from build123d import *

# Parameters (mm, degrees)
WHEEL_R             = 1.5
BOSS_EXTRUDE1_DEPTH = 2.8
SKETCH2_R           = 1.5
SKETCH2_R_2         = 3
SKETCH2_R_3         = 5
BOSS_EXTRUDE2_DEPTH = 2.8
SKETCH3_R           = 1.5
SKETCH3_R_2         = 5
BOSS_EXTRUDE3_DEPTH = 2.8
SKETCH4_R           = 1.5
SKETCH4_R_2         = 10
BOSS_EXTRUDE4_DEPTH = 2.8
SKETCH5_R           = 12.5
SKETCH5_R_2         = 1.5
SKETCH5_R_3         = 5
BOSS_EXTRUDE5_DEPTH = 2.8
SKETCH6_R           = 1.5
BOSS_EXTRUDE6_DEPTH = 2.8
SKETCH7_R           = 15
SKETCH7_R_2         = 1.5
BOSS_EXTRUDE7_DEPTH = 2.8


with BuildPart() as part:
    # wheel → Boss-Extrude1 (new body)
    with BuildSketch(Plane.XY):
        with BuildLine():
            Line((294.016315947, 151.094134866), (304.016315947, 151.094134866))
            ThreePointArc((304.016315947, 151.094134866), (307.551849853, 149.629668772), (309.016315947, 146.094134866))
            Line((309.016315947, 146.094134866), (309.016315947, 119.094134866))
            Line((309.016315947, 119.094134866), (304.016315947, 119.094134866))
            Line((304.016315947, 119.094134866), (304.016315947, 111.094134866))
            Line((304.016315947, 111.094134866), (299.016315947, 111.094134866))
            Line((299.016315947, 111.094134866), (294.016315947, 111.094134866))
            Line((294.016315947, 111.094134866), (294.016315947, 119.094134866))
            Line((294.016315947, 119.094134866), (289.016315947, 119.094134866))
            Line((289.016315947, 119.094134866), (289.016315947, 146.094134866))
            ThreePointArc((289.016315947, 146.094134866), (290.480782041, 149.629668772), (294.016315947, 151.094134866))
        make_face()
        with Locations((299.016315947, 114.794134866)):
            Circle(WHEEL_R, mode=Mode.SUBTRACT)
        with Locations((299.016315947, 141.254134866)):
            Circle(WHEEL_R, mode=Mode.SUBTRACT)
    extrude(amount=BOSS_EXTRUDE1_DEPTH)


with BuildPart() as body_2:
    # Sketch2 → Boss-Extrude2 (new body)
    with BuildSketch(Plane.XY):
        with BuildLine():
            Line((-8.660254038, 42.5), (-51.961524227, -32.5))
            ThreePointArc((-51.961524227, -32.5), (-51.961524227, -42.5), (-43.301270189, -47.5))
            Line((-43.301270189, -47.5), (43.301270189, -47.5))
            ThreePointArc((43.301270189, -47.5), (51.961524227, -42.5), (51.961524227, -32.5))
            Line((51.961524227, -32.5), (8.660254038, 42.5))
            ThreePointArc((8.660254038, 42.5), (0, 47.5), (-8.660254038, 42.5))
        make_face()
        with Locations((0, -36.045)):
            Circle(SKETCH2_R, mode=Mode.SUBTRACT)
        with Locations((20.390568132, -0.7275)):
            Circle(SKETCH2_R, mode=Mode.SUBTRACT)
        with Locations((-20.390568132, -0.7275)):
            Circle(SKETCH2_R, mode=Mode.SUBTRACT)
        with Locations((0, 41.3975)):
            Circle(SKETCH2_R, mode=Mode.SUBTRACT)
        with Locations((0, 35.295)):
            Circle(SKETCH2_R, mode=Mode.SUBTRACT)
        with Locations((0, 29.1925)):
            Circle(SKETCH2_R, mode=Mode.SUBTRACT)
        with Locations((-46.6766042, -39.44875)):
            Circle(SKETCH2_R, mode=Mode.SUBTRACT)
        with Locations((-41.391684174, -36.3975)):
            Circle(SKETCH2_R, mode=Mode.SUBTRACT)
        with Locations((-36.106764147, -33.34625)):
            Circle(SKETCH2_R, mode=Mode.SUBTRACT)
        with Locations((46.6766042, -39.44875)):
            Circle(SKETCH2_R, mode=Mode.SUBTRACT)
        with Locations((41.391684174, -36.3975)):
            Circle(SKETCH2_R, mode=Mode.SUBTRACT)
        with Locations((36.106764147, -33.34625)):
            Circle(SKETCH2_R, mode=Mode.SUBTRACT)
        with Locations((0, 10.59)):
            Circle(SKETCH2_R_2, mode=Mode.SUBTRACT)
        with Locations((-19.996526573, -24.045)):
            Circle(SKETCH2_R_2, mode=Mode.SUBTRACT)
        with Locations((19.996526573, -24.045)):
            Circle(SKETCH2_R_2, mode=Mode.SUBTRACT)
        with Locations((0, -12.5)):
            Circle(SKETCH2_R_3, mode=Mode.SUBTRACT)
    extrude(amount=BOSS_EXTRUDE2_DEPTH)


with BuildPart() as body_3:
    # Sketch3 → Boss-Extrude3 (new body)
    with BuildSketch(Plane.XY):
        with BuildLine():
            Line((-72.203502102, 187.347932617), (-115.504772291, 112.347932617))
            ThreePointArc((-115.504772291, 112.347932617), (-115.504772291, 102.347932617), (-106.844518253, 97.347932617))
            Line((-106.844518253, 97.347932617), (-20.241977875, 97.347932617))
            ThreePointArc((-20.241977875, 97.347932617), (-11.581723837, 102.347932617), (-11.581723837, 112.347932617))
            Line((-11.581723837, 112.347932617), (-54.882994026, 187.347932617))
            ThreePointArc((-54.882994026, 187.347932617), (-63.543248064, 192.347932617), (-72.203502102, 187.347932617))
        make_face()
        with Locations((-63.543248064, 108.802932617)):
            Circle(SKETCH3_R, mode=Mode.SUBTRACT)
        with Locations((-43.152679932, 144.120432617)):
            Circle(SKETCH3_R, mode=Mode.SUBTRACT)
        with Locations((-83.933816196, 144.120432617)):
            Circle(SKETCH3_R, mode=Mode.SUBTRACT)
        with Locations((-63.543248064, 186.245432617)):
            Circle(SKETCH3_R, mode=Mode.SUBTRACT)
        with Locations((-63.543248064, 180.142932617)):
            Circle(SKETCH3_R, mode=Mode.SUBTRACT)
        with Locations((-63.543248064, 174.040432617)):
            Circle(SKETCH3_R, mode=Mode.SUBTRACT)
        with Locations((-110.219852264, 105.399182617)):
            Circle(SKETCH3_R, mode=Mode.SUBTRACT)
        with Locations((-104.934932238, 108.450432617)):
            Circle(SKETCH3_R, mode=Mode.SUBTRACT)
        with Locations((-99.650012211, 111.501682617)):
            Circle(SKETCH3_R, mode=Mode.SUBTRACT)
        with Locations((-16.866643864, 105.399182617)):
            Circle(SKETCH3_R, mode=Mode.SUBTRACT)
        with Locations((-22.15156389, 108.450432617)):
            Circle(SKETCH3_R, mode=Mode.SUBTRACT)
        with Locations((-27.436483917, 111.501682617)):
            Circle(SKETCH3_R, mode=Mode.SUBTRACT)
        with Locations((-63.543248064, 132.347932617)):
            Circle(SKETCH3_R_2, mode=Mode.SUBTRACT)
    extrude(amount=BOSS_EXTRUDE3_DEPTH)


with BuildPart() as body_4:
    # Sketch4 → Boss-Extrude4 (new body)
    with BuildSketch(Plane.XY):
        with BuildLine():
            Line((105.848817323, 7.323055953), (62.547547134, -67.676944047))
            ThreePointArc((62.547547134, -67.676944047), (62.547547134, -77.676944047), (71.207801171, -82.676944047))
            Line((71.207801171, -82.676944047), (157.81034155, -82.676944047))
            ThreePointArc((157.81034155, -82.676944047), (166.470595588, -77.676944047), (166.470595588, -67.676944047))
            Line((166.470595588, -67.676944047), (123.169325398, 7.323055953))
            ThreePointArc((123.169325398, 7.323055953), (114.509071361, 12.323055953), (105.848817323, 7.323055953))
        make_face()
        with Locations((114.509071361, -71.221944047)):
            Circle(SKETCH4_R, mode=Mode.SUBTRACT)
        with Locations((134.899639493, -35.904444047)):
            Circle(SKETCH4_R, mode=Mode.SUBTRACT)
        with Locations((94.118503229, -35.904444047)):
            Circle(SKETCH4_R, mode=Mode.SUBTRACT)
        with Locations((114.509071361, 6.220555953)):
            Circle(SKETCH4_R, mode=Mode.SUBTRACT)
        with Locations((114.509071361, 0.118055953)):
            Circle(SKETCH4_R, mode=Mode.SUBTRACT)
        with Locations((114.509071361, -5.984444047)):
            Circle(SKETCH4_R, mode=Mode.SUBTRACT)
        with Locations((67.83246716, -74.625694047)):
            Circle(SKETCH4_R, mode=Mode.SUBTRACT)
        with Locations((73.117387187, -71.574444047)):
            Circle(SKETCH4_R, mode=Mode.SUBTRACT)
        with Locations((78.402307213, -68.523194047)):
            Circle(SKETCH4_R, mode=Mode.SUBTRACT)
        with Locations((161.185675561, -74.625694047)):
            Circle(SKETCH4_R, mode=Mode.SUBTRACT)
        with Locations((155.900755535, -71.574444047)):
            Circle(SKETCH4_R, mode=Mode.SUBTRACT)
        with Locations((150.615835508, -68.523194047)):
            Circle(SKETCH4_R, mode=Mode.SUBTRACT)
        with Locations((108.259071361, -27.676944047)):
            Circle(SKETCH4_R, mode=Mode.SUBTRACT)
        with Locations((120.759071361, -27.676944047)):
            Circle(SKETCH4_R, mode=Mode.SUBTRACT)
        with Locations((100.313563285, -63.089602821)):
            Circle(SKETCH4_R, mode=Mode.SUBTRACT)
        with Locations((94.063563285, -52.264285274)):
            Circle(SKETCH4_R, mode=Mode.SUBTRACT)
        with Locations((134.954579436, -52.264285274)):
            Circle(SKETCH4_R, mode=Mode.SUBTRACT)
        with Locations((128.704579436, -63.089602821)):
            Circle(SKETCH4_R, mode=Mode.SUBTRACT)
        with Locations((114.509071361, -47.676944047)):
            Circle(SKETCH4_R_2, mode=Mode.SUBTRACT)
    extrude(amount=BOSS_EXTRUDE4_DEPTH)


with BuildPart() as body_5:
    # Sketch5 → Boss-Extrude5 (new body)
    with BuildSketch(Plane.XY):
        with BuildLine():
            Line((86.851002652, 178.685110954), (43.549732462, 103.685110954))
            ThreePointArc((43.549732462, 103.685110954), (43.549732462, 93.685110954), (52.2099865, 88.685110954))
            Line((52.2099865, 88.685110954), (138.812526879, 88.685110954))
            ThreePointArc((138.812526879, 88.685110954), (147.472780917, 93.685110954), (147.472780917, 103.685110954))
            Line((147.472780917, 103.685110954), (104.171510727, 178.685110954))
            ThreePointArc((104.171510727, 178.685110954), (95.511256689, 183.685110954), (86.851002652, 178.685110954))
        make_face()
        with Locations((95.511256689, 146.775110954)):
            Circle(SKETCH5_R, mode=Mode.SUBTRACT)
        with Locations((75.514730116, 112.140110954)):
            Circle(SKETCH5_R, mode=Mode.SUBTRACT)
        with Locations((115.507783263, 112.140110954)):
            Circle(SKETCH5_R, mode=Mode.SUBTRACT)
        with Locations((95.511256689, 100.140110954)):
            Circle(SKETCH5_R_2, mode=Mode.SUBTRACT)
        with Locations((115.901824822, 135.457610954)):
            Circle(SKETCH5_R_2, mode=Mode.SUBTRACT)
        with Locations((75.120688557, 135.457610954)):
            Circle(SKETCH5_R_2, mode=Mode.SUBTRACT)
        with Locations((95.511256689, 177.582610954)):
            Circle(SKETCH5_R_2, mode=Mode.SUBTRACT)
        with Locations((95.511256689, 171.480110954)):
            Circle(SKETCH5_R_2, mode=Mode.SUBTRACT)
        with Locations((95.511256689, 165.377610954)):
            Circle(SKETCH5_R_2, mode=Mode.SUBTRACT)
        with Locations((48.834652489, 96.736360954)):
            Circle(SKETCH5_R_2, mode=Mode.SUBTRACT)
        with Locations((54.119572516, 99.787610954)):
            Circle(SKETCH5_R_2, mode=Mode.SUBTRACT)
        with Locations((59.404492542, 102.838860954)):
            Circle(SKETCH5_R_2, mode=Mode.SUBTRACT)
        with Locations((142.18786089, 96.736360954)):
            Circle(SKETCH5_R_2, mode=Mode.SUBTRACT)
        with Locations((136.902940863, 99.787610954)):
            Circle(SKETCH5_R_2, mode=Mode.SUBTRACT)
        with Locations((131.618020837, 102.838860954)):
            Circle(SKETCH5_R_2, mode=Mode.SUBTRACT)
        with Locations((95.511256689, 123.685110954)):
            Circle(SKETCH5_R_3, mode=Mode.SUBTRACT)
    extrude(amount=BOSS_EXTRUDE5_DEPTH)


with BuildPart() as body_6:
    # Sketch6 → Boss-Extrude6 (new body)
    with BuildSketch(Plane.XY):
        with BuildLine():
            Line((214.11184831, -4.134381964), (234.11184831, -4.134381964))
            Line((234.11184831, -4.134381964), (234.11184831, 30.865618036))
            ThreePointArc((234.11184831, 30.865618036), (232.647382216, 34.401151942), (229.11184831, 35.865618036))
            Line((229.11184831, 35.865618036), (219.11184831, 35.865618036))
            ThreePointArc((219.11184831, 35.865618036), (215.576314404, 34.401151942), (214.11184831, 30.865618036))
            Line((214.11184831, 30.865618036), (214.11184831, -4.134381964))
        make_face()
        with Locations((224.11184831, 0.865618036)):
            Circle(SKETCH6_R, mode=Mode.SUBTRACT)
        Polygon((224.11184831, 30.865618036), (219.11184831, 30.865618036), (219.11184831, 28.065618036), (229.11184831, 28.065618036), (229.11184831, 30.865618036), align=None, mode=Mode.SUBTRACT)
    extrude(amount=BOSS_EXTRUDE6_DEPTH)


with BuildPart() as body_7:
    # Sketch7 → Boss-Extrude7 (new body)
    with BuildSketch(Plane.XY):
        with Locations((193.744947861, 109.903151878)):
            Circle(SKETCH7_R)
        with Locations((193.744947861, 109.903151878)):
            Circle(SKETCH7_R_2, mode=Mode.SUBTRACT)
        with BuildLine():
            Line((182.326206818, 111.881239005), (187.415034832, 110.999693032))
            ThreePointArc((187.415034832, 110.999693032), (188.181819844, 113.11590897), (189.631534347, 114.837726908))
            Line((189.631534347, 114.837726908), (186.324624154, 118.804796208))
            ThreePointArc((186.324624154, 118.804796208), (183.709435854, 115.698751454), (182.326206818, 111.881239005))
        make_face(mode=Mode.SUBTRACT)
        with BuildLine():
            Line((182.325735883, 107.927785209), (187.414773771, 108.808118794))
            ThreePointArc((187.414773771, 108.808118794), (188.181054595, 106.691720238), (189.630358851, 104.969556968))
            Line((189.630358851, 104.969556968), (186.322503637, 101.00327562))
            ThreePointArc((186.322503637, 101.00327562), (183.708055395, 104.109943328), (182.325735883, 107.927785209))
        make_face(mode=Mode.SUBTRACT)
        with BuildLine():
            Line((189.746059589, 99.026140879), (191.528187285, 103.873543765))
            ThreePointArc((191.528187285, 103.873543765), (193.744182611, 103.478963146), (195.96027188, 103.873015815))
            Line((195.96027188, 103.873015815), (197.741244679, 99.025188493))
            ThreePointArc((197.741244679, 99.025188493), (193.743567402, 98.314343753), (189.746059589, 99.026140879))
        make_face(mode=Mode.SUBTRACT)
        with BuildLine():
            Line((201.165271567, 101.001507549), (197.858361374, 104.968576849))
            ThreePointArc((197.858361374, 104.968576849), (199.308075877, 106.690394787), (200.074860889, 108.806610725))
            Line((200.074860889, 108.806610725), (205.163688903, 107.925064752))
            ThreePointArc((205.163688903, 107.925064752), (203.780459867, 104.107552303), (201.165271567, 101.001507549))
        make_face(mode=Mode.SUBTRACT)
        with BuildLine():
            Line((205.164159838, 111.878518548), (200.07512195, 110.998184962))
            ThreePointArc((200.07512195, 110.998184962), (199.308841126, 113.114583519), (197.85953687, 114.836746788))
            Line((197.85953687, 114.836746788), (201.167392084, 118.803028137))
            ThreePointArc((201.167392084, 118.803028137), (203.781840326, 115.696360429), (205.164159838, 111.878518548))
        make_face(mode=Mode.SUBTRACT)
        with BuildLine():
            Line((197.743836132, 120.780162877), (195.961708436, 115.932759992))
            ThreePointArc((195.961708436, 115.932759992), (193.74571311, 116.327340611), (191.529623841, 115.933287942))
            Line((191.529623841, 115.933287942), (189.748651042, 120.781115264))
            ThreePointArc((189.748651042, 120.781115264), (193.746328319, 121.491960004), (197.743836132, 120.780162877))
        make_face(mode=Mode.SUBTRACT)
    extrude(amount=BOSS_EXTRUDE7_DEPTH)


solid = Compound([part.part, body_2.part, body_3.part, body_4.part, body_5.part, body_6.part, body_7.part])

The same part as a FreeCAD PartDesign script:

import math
import FreeCAD as App
import Part
import Sketcher
from FreeCAD import Vector
Q = App.Units.Quantity


def add_polygon(sketch, points):
    """Adds a closed chain of lines whose ends are joined by coincident constraints."""
    first, n = sketch.GeometryCount, len(points)
    for a, b in zip(points, points[1:] + points[:1]):
        sketch.addGeometry(Part.LineSegment(App.Vector(*a, 0), App.Vector(*b, 0)), False)
    for i in range(n):
        sketch.addConstraint(Sketcher.Constraint("Coincident", first + i, 2, first + (i + 1) % n, 1))

doc = App.newDocument("Part")
body = doc.addObject("PartDesign::Body", "Body")

sketch1 = body.newObject("Sketcher::SketchObject", "Sketch")
sketch1.AttachmentSupport = (doc.getObject("XY_Plane"), [""])
sketch1.MapMode = "FlatFace"
sketch1.addGeometry([
    Part.LineSegment(Vector(304, 151.1, 0), Vector(294, 151.1, 0)),
    Part.ArcOfCircle(Part.Circle(Vector(294, 146.1, 0), Vector(0, 0, 1), 5), math.radians(90), math.radians(180)),
    Part.LineSegment(Vector(289, 146.1, 0), Vector(289, 119.1, 0)),
    Part.LineSegment(Vector(289, 119.1, 0), Vector(294, 119.1, 0)),
    Part.LineSegment(Vector(294, 119.1, 0), Vector(294, 111.1, 0)),
    Part.LineSegment(Vector(294, 111.1, 0), Vector(304, 111.1, 0)),
    Part.LineSegment(Vector(304, 111.1, 0), Vector(304, 119.1, 0)),
    Part.LineSegment(Vector(304, 119.1, 0), Vector(309, 119.1, 0)),
    Part.LineSegment(Vector(309, 119.1, 0), Vector(309, 146.1, 0)),
    Part.ArcOfCircle(Part.Circle(Vector(304, 146.1, 0), Vector(0, 0, 1), 5), math.radians(0), math.radians(90)),
    Part.Circle(Vector(299, 114.8, 0), Vector(0, 0, 1), 1.5),
    Part.Circle(Vector(299, 141.3, 0), Vector(0, 0, 1), 1.5),
], False)
sketch1.addConstraint([
    Sketcher.Constraint("Tangent", 0, 2, 1, 1),
    Sketcher.Constraint("Tangent", 1, 2, 2, 1),
    Sketcher.Constraint("Coincident", 2, 2, 3, 1),
    Sketcher.Constraint("Coincident", 3, 2, 4, 1),
    Sketcher.Constraint("Coincident", 4, 2, 5, 1),
    Sketcher.Constraint("Coincident", 5, 2, 6, 1),
    Sketcher.Constraint("Coincident", 6, 2, 7, 1),
    Sketcher.Constraint("Coincident", 7, 2, 8, 1),
    Sketcher.Constraint("Tangent", 8, 2, 9, 1),
    Sketcher.Constraint("Tangent", 9, 2, 0, 1),
    Sketcher.Constraint("Horizontal", 0),
    Sketcher.Constraint("Vertical", 2),
    Sketcher.Constraint("Horizontal", 3),
    Sketcher.Constraint("Vertical", 4),
    Sketcher.Constraint("Horizontal", 5),
    Sketcher.Constraint("Vertical", 6),
    Sketcher.Constraint("Horizontal", 7),
    Sketcher.Constraint("Vertical", 8),
    Sketcher.Constraint("Equal", 1, 9),
    Sketcher.Constraint("Equal", 10, 11),
    Sketcher.Constraint("Horizontal", 3, 2, 6, 2),
    Sketcher.Constraint("Vertical", 10, 3, 11, 3),
    Sketcher.Constraint("Vertical", 0, 2, 3, 2),
    Sketcher.Constraint("Vertical", 9, 3, 5, 2),
    Sketcher.Constraint("Diameter", 10, Q("3 mm")),
    Sketcher.Constraint("Radius", 1, Q("5 mm")),
    Sketcher.Constraint("DistanceX", 0, 2, 0, 1, Q("10 mm")),
    Sketcher.Constraint("DistanceY", 2, 2, 2, 1, Q("27 mm")),
    Sketcher.Constraint("DistanceY", 4, 2, 4, 1, Q("8 mm")),
    Sketcher.Constraint("DistanceX", 1, 3, 10, 3, Q("5 mm")),
    Sketcher.Constraint("DistanceY", 10, 3, 1, 3, Q("31.3 mm")),
    Sketcher.Constraint("DistanceY", 11, 3, 1, 3, Q("4.84 mm")),
    Sketcher.Constraint("DistanceX", -1, 1, 1, 3, Q("294.016316 mm")),
    Sketcher.Constraint("DistanceY", -1, 1, 1, 3, Q("146.094135 mm")),
])
pad1 = body.newObject("PartDesign::Pad", "Pad")
pad1.Profile = sketch1
pad1.Length = 2.8
body2 = doc.addObject("PartDesign::Body", "Body001")

sketch2 = body2.newObject("Sketcher::SketchObject", "Sketch001")
sketch2.AttachmentSupport = (doc.getObject("XY_Plane001"), [""])
sketch2.MapMode = "FlatFace"
sketch2.addGeometry([
    Part.LineSegment(Vector(-8.7, 42.5, 0), Vector(-52, -32.5, 0)),
    Part.ArcOfCircle(Part.Circle(Vector(-43.3, -37.5, 0), Vector(0, 0, 1), 10), math.radians(150), math.radians(270)),
    Part.LineSegment(Vector(-43.3, -47.5, 0), Vector(43.3, -47.5, 0)),
    Part.ArcOfCircle(Part.Circle(Vector(43.3, -37.5, 0), Vector(0, 0, 1), 10), math.radians(-90), math.radians(30)),
    Part.LineSegment(Vector(52, -32.5, 0), Vector(8.7, 42.5, 0)),
    Part.ArcOfCircle(Part.Circle(Vector(0, 37.5, 0), Vector(0, 0, 1), 10), math.radians(30), math.radians(150)),
    Part.Circle(Vector(-46.7, -39.4, 0), Vector(0, 0, 1), 1.5),
    Part.Circle(Vector(-41.4, -36.4, 0), Vector(0, 0, 1), 1.5),
    Part.Circle(Vector(-36.1, -33.3, 0), Vector(0, 0, 1), 1.5),
    Part.Circle(Vector(-20, -24, 0), Vector(0, 0, 1), 3),
    Part.Circle(Vector(-20.4, -0.7, 0), Vector(0, 0, 1), 1.5),
    Part.Circle(Vector(0, -36, 0), Vector(0, 0, 1), 1.5),
    Part.Circle(Vector(20, -24, 0), Vector(0, 0, 1), 3),
    Part.Circle(Vector(36.1, -33.3, 0), Vector(0, 0, 1), 1.5),
    Part.Circle(Vector(41.4, -36.4, 0), Vector(0, 0, 1), 1.5),
    Part.Circle(Vector(46.7, -39.4, 0), Vector(0, 0, 1), 1.5),
    Part.Circle(Vector(0, -12.5, 0), Vector(0, 0, 1), 5),
    Part.Circle(Vector(20.4, -0.7, 0), Vector(0, 0, 1), 1.5),
    Part.Circle(Vector(0, 10.6, 0), Vector(0, 0, 1), 3),
    Part.Circle(Vector(0, 29.2, 0), Vector(0, 0, 1), 1.5),
    Part.Circle(Vector(0, 35.3, 0), Vector(0, 0, 1), 1.5),
    Part.Circle(Vector(0, 41.4, 0), Vector(0, 0, 1), 1.5),
], False)
sketch2.addConstraint([
    Sketcher.Constraint("Tangent", 0, 2, 1, 1),
    Sketcher.Constraint("Tangent", 1, 2, 2, 1),
    Sketcher.Constraint("Tangent", 2, 2, 3, 1),
    Sketcher.Constraint("Tangent", 3, 2, 4, 1),
    Sketcher.Constraint("Tangent", 4, 2, 5, 1),
    Sketcher.Constraint("Tangent", 5, 2, 0, 1),
    Sketcher.Constraint("Horizontal", 2),
    Sketcher.Constraint("Equal", 1, 3),
    Sketcher.Constraint("Equal", 3, 5),
    Sketcher.Constraint("Equal", 6, 7),
    Sketcher.Constraint("Equal", 7, 8),
    Sketcher.Constraint("Equal", 8, 10),
    Sketcher.Constraint("Equal", 10, 11),
    Sketcher.Constraint("Equal", 9, 12),
    Sketcher.Constraint("Equal", 11, 13),
    Sketcher.Constraint("Equal", 13, 14),
    Sketcher.Constraint("Equal", 14, 15),
    Sketcher.Constraint("Equal", 15, 17),
    Sketcher.Constraint("Equal", 12, 18),
    Sketcher.Constraint("Equal", 17, 19),
    Sketcher.Constraint("Equal", 19, 20),
    Sketcher.Constraint("Equal", 20, 21),
    Sketcher.Constraint("Symmetric", 9, 3, 12, 3, -2),
    Sketcher.Constraint("Symmetric", 8, 3, 13, 3, -2),
    Sketcher.Constraint("Symmetric", 7, 3, 14, 3, -2),
    Sketcher.Constraint("Symmetric", 6, 3, 15, 3, -2),
    Sketcher.Constraint("Symmetric", 10, 3, 17, 3, -2),
    Sketcher.Constraint("Symmetric", 0, 2, 3, 2, -2),
    Sketcher.Constraint("PointOnObject", 11, 3, -2),
    Sketcher.Constraint("PointOnObject", 16, 3, -2),
    Sketcher.Constraint("PointOnObject", 18, 3, -2),
    Sketcher.Constraint("PointOnObject", 19, 3, -2),
    Sketcher.Constraint("PointOnObject", 20, 3, -2),
    Sketcher.Constraint("PointOnObject", 21, 3, -2),
    Sketcher.Constraint("Diameter", 6, Q("3 mm")),
    Sketcher.Constraint("Diameter", 9, Q("6 mm")),
    Sketcher.Constraint("Diameter", 16, Q("10 mm")),
    Sketcher.Constraint("Radius", 1, Q("10 mm")),
    Sketcher.Constraint("Angle", 0, Q("-120 deg")),
    Sketcher.Constraint("DistanceY", 1, 3, 5, 3, Q("75 mm")),
    Sketcher.Constraint("DistanceY", 11, 3, 9, 3, Q("12 mm")),
    Sketcher.Constraint("DistanceY", 1, 3, -1, 1, Q("37.5 mm")),
    Sketcher.Constraint("DistanceY", 16, 3, -1, 1, Q("12.5 mm")),
    Sketcher.Constraint("DistanceY", -1, 1, 18, 3, Q("10.59 mm")),
    Sketcher.Constraint("DistanceY", 7, 3, 10, 3, Q("35.67 mm")),
    Sketcher.Constraint("DistanceY", 10, 3, 19, 3, Q("29.92 mm")),
    Sketcher.Constraint("DistanceY", 9, 3, -1, 1, Q("24.045 mm")),
    Sketcher.Constraint("DistanceY", -1, 1, 20, 3, Q("35.295 mm")),
    Sketcher.Constraint("DistanceY", 19, 3, 21, 3, Q("12.205 mm")),
    Sketcher.Constraint("DistanceY", 7, 3, -1, 1, Q("36.3975 mm")),
    Sketcher.Constraint("DistanceY", 6, 3, 8, 3, Q("6.1025 mm")),
    Sketcher.Constraint("DistanceY", 6, 3, -1, 1, Q("39.44875 mm")),
    Sketcher.Constraint("DistanceX", 10, 3, -1, 1, Q("20.390568 mm")),
    Sketcher.Constraint("DistanceX", 6, 3, 7, 3, Q("5.28492 mm")),
    Sketcher.Constraint("DistanceX", 7, 3, 8, 3, Q("5.28492 mm")),
    Sketcher.Constraint("DistanceX", 10, 3, 9, 3, Q("0.394042 mm")),
    Sketcher.Constraint("DistanceX", 8, 3, 12, 3, Q("56.103291 mm")),
])
pad2 = body2.newObject("PartDesign::Pad", "Pad001")
pad2.Profile = sketch2
pad2.Length = 2.8
body3 = doc.addObject("PartDesign::Body", "Body002")

sketch3 = body3.newObject("Sketcher::SketchObject", "Sketch002")
sketch3.AttachmentSupport = (doc.getObject("XY_Plane002"), [""])
sketch3.MapMode = "FlatFace"
sketch3.addGeometry([
    Part.LineSegment(Vector(-72.2, 187.3, 0), Vector(-115.5, 112.3, 0)),
    Part.ArcOfCircle(Part.Circle(Vector(-106.8, 107.3, 0), Vector(0, 0, 1), 10), math.radians(150), math.radians(270)),
    Part.LineSegment(Vector(-106.8, 97.3, 0), Vector(-20.2, 97.3, 0)),
    Part.ArcOfCircle(Part.Circle(Vector(-20.2, 107.3, 0), Vector(0, 0, 1), 10), math.radians(-90), math.radians(30)),
    Part.LineSegment(Vector(-11.6, 112.3, 0), Vector(-54.9, 187.3, 0)),
    Part.ArcOfCircle(Part.Circle(Vector(-63.5, 182.3, 0), Vector(0, 0, 1), 10), math.radians(30), math.radians(150)),
    Part.Circle(Vector(-110.2, 105.4, 0), Vector(0, 0, 1), 1.5),
    Part.Circle(Vector(-104.9, 108.5, 0), Vector(0, 0, 1), 1.5),
    Part.Circle(Vector(-99.7, 111.5, 0), Vector(0, 0, 1), 1.5),
    Part.Circle(Vector(-83.9, 144.1, 0), Vector(0, 0, 1), 1.5),
    Part.Circle(Vector(-63.5, 108.8, 0), Vector(0, 0, 1), 1.5),
    Part.Circle(Vector(-27.4, 111.5, 0), Vector(0, 0, 1), 1.5),
    Part.Circle(Vector(-22.2, 108.5, 0), Vector(0, 0, 1), 1.5),
    Part.Circle(Vector(-16.9, 105.4, 0), Vector(0, 0, 1), 1.5),
    Part.Circle(Vector(-63.5, 132.3, 0), Vector(0, 0, 1), 5),
    Part.Circle(Vector(-43.2, 144.1, 0), Vector(0, 0, 1), 1.5),
    Part.Circle(Vector(-63.5, 174, 0), Vector(0, 0, 1), 1.5),
    Part.Circle(Vector(-63.5, 180.1, 0), Vector(0, 0, 1), 1.5),
    Part.Circle(Vector(-63.5, 186.2, 0), Vector(0, 0, 1), 1.5),
], False)
sketch3.addConstraint([
    Sketcher.Constraint("Tangent", 0, 2, 1, 1),
    Sketcher.Constraint("Tangent", 1, 2, 2, 1),
    Sketcher.Constraint("Tangent", 2, 2, 3, 1),
    Sketcher.Constraint("Tangent", 3, 2, 4, 1),
    Sketcher.Constraint("Tangent", 4, 2, 5, 1),
    Sketcher.Constraint("Tangent", 5, 2, 0, 1),
    Sketcher.Constraint("Horizontal", 2),
    Sketcher.Constraint("Equal", 1, 3),
    Sketcher.Constraint("Equal", 3, 5),
    Sketcher.Constraint("Equal", 6, 7),
    Sketcher.Constraint("Equal", 7, 8),
    Sketcher.Constraint("Equal", 8, 9),
    Sketcher.Constraint("Equal", 9, 10),
    Sketcher.Constraint("Equal", 10, 11),
    Sketcher.Constraint("Equal", 11, 12),
    Sketcher.Constraint("Equal", 12, 13),
    Sketcher.Constraint("Equal", 13, 15),
    Sketcher.Constraint("Equal", 15, 16),
    Sketcher.Constraint("Equal", 16, 17),
    Sketcher.Constraint("Equal", 17, 18),
    Sketcher.Constraint("Horizontal", 8, 3, 11, 3),
    Sketcher.Constraint("Horizontal", 7, 3, 12, 3),
    Sketcher.Constraint("Horizontal", 6, 3, 13, 3),
    Sketcher.Constraint("Horizontal", 9, 3, 15, 3),
    Sketcher.Constraint("Horizontal", 0, 2, 3, 2),
    Sketcher.Constraint("Vertical", 5, 3, 10, 3),
    Sketcher.Constraint("Vertical", 10, 3, 14, 3),
    Sketcher.Constraint("Vertical", 14, 3, 16, 3),
    Sketcher.Constraint("Vertical", 16, 3, 17, 3),
    Sketcher.Constraint("Vertical", 17, 3, 18, 3),
    Sketcher.Constraint("Diameter", 6, Q("3 mm")),
    Sketcher.Constraint("Diameter", 14, Q("10 mm")),
    Sketcher.Constraint("Radius", 1, Q("10 mm")),
    Sketcher.Constraint("Angle", 0, Q("-120 deg")),
    Sketcher.Constraint("DistanceY", 3, 3, 5, 3, Q("75 mm")),
    Sketcher.Constraint("DistanceY", 7, 3, 9, 3, Q("35.67 mm")),
    Sketcher.Constraint("DistanceY", 9, 3, 16, 3, Q("29.92 mm")),
    Sketcher.Constraint("DistanceY", 3, 3, 10, 3, Q("1.455 mm")),
    Sketcher.Constraint("DistanceY", 10, 3, 14, 3, Q("23.545 mm")),
    Sketcher.Constraint("DistanceY", 17, 3, 5, 3, Q("2.205 mm")),
    Sketcher.Constraint("DistanceY", 16, 3, 18, 3, Q("12.205 mm")),
    Sketcher.Constraint("DistanceY", 1, 3, 7, 3, Q("1.1025 mm")),
    Sketcher.Constraint("DistanceY", 6, 3, 8, 3, Q("6.1025 mm")),
    Sketcher.Constraint("DistanceX", 1, 3, -1, 1, Q("106.844518 mm")),
    Sketcher.Constraint("DistanceX", 15, 3, -1, 1, Q("43.15268 mm")),
    Sketcher.Constraint("DistanceY", 6, 3, 1, 3, Q("1.94875 mm")),
    Sketcher.Constraint("DistanceX", 6, 3, 7, 3, Q("5.28492 mm")),
    Sketcher.Constraint("DistanceX", 7, 3, 8, 3, Q("5.28492 mm")),
    Sketcher.Constraint("DistanceX", 9, 3, 5, 3, Q("20.390568 mm")),
    Sketcher.Constraint("DistanceX", 8, 3, 11, 3, Q("72.213528 mm")),
    Sketcher.Constraint("DistanceX", 11, 3, 12, 3, Q("5.28492 mm")),
    Sketcher.Constraint("DistanceX", 12, 3, 13, 3, Q("5.28492 mm")),
    Sketcher.Constraint("DistanceX", 0, 2, 6, 3, Q("5.28492 mm")),
    Sketcher.Constraint("DistanceY", -1, 1, 1, 3, Q("107.347933 mm")),
])
pad3 = body3.newObject("PartDesign::Pad", "Pad002")
pad3.Profile = sketch3
pad3.Length = 2.8
body4 = doc.addObject("PartDesign::Body", "Body003")

sketch4 = body4.newObject("Sketcher::SketchObject", "Sketch003")
sketch4.AttachmentSupport = (doc.getObject("XY_Plane003"), [""])
sketch4.MapMode = "FlatFace"
sketch4.addGeometry([
    Part.LineSegment(Vector(105.8, 7.3, 0), Vector(62.5, -67.7, 0)),
    Part.ArcOfCircle(Part.Circle(Vector(71.2, -72.7, 0), Vector(0, 0, 1), 10), math.radians(150), math.radians(270)),
    Part.LineSegment(Vector(71.2, -82.7, 0), Vector(157.8, -82.7, 0)),
    Part.ArcOfCircle(Part.Circle(Vector(157.8, -72.7, 0), Vector(0, 0, 1), 10), math.radians(-90), math.radians(30)),
    Part.LineSegment(Vector(166.5, -67.7, 0), Vector(123.2, 7.3, 0)),
    Part.ArcOfCircle(Part.Circle(Vector(114.5, 2.3, 0), Vector(0, 0, 1), 10), math.radians(30), math.radians(150)),
    Part.Circle(Vector(67.8, -74.6, 0), Vector(0, 0, 1), 1.5),
    Part.Circle(Vector(73.1, -71.6, 0), Vector(0, 0, 1), 1.5),
    Part.Circle(Vector(78.4, -68.5, 0), Vector(0, 0, 1), 1.5),
    Part.Circle(Vector(100.3, -63.1, 0), Vector(0, 0, 1), 1.5),
    Part.Circle(Vector(94.1, -52.3, 0), Vector(0, 0, 1), 1.5),
    Part.Circle(Vector(94.1, -35.9, 0), Vector(0, 0, 1), 1.5),
    Part.Circle(Vector(114.5, -71.2, 0), Vector(0, 0, 1), 1.5),
    Part.Circle(Vector(128.7, -63.1, 0), Vector(0, 0, 1), 1.5),
    Part.Circle(Vector(150.6, -68.5, 0), Vector(0, 0, 1), 1.5),
    Part.Circle(Vector(155.9, -71.6, 0), Vector(0, 0, 1), 1.5),
    Part.Circle(Vector(161.2, -74.6, 0), Vector(0, 0, 1), 1.5),
    Part.Circle(Vector(114.5, -47.7, 0), Vector(0, 0, 1), 10),
    Part.Circle(Vector(135, -52.3, 0), Vector(0, 0, 1), 1.5),
    Part.Circle(Vector(134.9, -35.9, 0), Vector(0, 0, 1), 1.5),
    Part.Circle(Vector(108.3, -27.7, 0), Vector(0, 0, 1), 1.5),
    Part.Circle(Vector(120.8, -27.7, 0), Vector(0, 0, 1), 1.5),
    Part.Circle(Vector(114.5, -6, 0), Vector(0, 0, 1), 1.5),
    Part.Circle(Vector(114.5, 0.1, 0), Vector(0, 0, 1), 1.5),
    Part.Circle(Vector(114.5, 6.2, 0), Vector(0, 0, 1), 1.5),
], False)
sketch4.addConstraint([
    Sketcher.Constraint("Tangent", 0, 2, 1, 1),
    Sketcher.Constraint("Tangent", 1, 2, 2, 1),
    Sketcher.Constraint("Tangent", 2, 2, 3, 1),
    Sketcher.Constraint("Tangent", 3, 2, 4, 1),
    Sketcher.Constraint("Tangent", 4, 2, 5, 1),
    Sketcher.Constraint("Tangent", 5, 2, 0, 1),
    Sketcher.Constraint("Horizontal", 2),
    Sketcher.Constraint("Equal", 1, 3),
    Sketcher.Constraint("Equal", 3, 5),
    Sketcher.Constraint("Equal", 6, 7),
    Sketcher.Constraint("Equal", 7, 8),
    Sketcher.Constraint("Equal", 8, 9),
    Sketcher.Constraint("Equal", 9, 10),
    Sketcher.Constraint("Equal", 10, 11),
    Sketcher.Constraint("Equal", 11, 12),
    Sketcher.Constraint("Equal", 12, 13),
    Sketcher.Constraint("Equal", 13, 14),
    Sketcher.Constraint("Equal", 14, 15),
    Sketcher.Constraint("Equal", 15, 16),
    Sketcher.Constraint("Equal", 5, 17),
    Sketcher.Constraint("Equal", 16, 18),
    Sketcher.Constraint("Equal", 18, 19),
    Sketcher.Constraint("Equal", 19, 20),
    Sketcher.Constraint("Equal", 20, 21),
    Sketcher.Constraint("Equal", 21, 22),
    Sketcher.Constraint("Equal", 22, 23),
    Sketcher.Constraint("Equal", 23, 24),
    Sketcher.Constraint("Horizontal", 9, 3, 13, 3),
    Sketcher.Constraint("Horizontal", 8, 3, 14, 3),
    Sketcher.Constraint("Horizontal", 7, 3, 15, 3),
    Sketcher.Constraint("Horizontal", 6, 3, 16, 3),
    Sketcher.Constraint("Horizontal", 10, 3, 18, 3),
    Sketcher.Constraint("Horizontal", 11, 3, 19, 3),
    Sketcher.Constraint("Horizontal", 20, 3, 21, 3),
    Sketcher.Constraint("Horizontal", 0, 2, 3, 2),
    Sketcher.Constraint("Vertical", 5, 3, 12, 3),
    Sketcher.Constraint("Vertical", 12, 3, 17, 3),
    Sketcher.Constraint("Vertical", 17, 3, 22, 3),
    Sketcher.Constraint("Vertical", 22, 3, 23, 3),
    Sketcher.Constraint("Vertical", 23, 3, 24, 3),
    Sketcher.Constraint("Diameter", 6, Q("3 mm")),
    Sketcher.Constraint("Diameter", 17, Q("20 mm")),
    Sketcher.Constraint("Angle", 0, Q("-120 deg")),
    Sketcher.Constraint("DistanceY", 1, 3, 5, 3, Q("75 mm")),
    Sketcher.Constraint("DistanceY", 17, 3, 20, 3, Q("20 mm")),
    Sketcher.Constraint("DistanceY", 20, 3, 5, 3, Q("30 mm")),
    Sketcher.Constraint("DistanceX", 20, 3, 21, 3, Q("12.5 mm")),
    Sketcher.Constraint("DistanceX", 10, 3, 9, 3, Q("6.25 mm")),
    Sketcher.Constraint("DistanceY", 7, 3, 11, 3, Q("35.67 mm")),
    Sketcher.Constraint("DistanceX", 13, 3, 18, 3, Q("6.25 mm")),
    Sketcher.Constraint("DistanceX", 20, 3, 17, 3, Q("6.25 mm")),
    Sketcher.Constraint("DistanceY", 11, 3, 22, 3, Q("29.92 mm")),
    Sketcher.Constraint("DistanceY", 12, 3, 17, 3, Q("23.545 mm")),
    Sketcher.Constraint("DistanceY", 23, 3, 5, 3, Q("2.205 mm")),
    Sketcher.Constraint("DistanceY", 22, 3, 24, 3, Q("12.205 mm")),
    Sketcher.Constraint("DistanceX", -1, 1, 1, 3, Q("71.207801 mm")),
    Sketcher.Constraint("DistanceY", 1, 3, 7, 3, Q("1.1025 mm")),
    Sketcher.Constraint("DistanceY", 6, 3, 8, 3, Q("6.1025 mm")),
    Sketcher.Constraint("DistanceX", -1, 1, 13, 3, Q("128.704579 mm")),
    Sketcher.Constraint("DistanceX", -1, 1, 19, 3, Q("134.899639 mm")),
    Sketcher.Constraint("DistanceY", 6, 3, 1, 3, Q("1.94875 mm")),
    Sketcher.Constraint("DistanceX", 6, 3, 7, 3, Q("5.28492 mm")),
    Sketcher.Constraint("DistanceX", 7, 3, 8, 3, Q("5.28492 mm")),
    Sketcher.Constraint("DistanceY", 8, 3, 9, 3, Q("5.433591 mm")),
    Sketcher.Constraint("DistanceX", 9, 3, 3, 3, Q("57.496778 mm")),
    Sketcher.Constraint("DistanceY", 8, 3, 10, 3, Q("16.258909 mm")),
    Sketcher.Constraint("DistanceX", 10, 3, 11, 3, Q("0.05494 mm")),
    Sketcher.Constraint("DistanceX", 14, 3, 15, 3, Q("5.28492 mm")),
    Sketcher.Constraint("DistanceX", 15, 3, 16, 3, Q("5.28492 mm")),
    Sketcher.Constraint("DistanceX", 0, 2, 6, 3, Q("5.28492 mm")),
    Sketcher.Constraint("DistanceX", 16, 3, 3, 2, Q("5.28492 mm")),
    Sketcher.Constraint("DistanceY", 1, 3, -1, 1, Q("72.676944 mm")),
])
pad4 = body4.newObject("PartDesign::Pad", "Pad003")
pad4.Profile = sketch4
pad4.Length = 2.8
body5 = doc.addObject("PartDesign::Body", "Body004")

sketch5 = body5.newObject("Sketcher::SketchObject", "Sketch004")
sketch5.AttachmentSupport = (doc.getObject("XY_Plane004"), [""])
sketch5.MapMode = "FlatFace"
sketch5.addGeometry([
    Part.LineSegment(Vector(86.9, 178.7, 0), Vector(43.5, 103.7, 0)),
    Part.ArcOfCircle(Part.Circle(Vector(52.2, 98.7, 0), Vector(0, 0, 1), 10), math.radians(150), math.radians(270)),
    Part.LineSegment(Vector(52.2, 88.7, 0), Vector(138.8, 88.7, 0)),
    Part.ArcOfCircle(Part.Circle(Vector(138.8, 98.7, 0), Vector(0, 0, 1), 10), math.radians(-90), math.radians(30)),
    Part.LineSegment(Vector(147.5, 103.7, 0), Vector(104.2, 178.7, 0)),
    Part.ArcOfCircle(Part.Circle(Vector(95.5, 173.7, 0), Vector(0, 0, 1), 10), math.radians(30), math.radians(150)),
    Part.Circle(Vector(48.8, 96.7, 0), Vector(0, 0, 1), 1.5),
    Part.Circle(Vector(54.1, 99.8, 0), Vector(0, 0, 1), 1.5),
    Part.Circle(Vector(59.4, 102.8, 0), Vector(0, 0, 1), 1.5),
    Part.Circle(Vector(95.5, 100.1, 0), Vector(0, 0, 1), 1.5),
    Part.Circle(Vector(75.5, 112.1, 0), Vector(0, 0, 1), 12.5),
    Part.Circle(Vector(95.5, 123.7, 0), Vector(0, 0, 1), 5),
    Part.Circle(Vector(75.1, 135.5, 0), Vector(0, 0, 1), 1.5),
    Part.Circle(Vector(115.5, 112.1, 0), Vector(0, 0, 1), 12.5),
    Part.Circle(Vector(131.6, 102.8, 0), Vector(0, 0, 1), 1.5),
    Part.Circle(Vector(136.9, 99.8, 0), Vector(0, 0, 1), 1.5),
    Part.Circle(Vector(142.2, 96.7, 0), Vector(0, 0, 1), 1.5),
    Part.Circle(Vector(115.9, 135.5, 0), Vector(0, 0, 1), 1.5),
    Part.Circle(Vector(95.5, 146.8, 0), Vector(0, 0, 1), 12.5),
    Part.Circle(Vector(95.5, 165.4, 0), Vector(0, 0, 1), 1.5),
    Part.Circle(Vector(95.5, 171.5, 0), Vector(0, 0, 1), 1.5),
    Part.Circle(Vector(95.5, 177.6, 0), Vector(0, 0, 1), 1.5),
], False)
sketch5.addConstraint([
    Sketcher.Constraint("Tangent", 0, 2, 1, 1),
    Sketcher.Constraint("Tangent", 1, 2, 2, 1),
    Sketcher.Constraint("Tangent", 2, 2, 3, 1),
    Sketcher.Constraint("Tangent", 3, 2, 4, 1),
    Sketcher.Constraint("Tangent", 4, 2, 5, 1),
    Sketcher.Constraint("Tangent", 5, 2, 0, 1),
    Sketcher.Constraint("Horizontal", 2),
    Sketcher.Constraint("Equal", 1, 3),
    Sketcher.Constraint("Equal", 3, 5),
    Sketcher.Constraint("Equal", 6, 7),
    Sketcher.Constraint("Equal", 7, 8),
    Sketcher.Constraint("Equal", 8, 9),
    Sketcher.Constraint("Equal", 9, 12),
    Sketcher.Constraint("Equal", 10, 13),
    Sketcher.Constraint("Equal", 12, 14),
    Sketcher.Constraint("Equal", 14, 15),
    Sketcher.Constraint("Equal", 15, 16),
    Sketcher.Constraint("Equal", 16, 17),
    Sketcher.Constraint("Equal", 13, 18),
    Sketcher.Constraint("Equal", 17, 19),
    Sketcher.Constraint("Equal", 19, 20),
    Sketcher.Constraint("Equal", 20, 21),
    Sketcher.Constraint("Horizontal", 10, 3, 13, 3),
    Sketcher.Constraint("Horizontal", 8, 3, 14, 3),
    Sketcher.Constraint("Horizontal", 7, 3, 15, 3),
    Sketcher.Constraint("Horizontal", 6, 3, 16, 3),
    Sketcher.Constraint("Horizontal", 12, 3, 17, 3),
    Sketcher.Constraint("Horizontal", 0, 2, 3, 2),
    Sketcher.Constraint("Vertical", 5, 3, 9, 3),
    Sketcher.Constraint("Vertical", 9, 3, 11, 3),
    Sketcher.Constraint("Vertical", 11, 3, 18, 3),
    Sketcher.Constraint("Vertical", 18, 3, 19, 3),
    Sketcher.Constraint("Vertical", 19, 3, 20, 3),
    Sketcher.Constraint("Vertical", 20, 3, 21, 3),
    Sketcher.Constraint("Diameter", 6, Q("3 mm")),
    Sketcher.Constraint("Diameter", 10, Q("25 mm")),
    Sketcher.Constraint("Diameter", 11, Q("10 mm")),
    Sketcher.Constraint("Radius", 1, Q("10 mm")),
    Sketcher.Constraint("Angle", 0, Q("-120 deg")),
    Sketcher.Constraint("DistanceY", 3, 3, 5, 3, Q("75 mm")),
    Sketcher.Constraint("DistanceY", 9, 3, 10, 3, Q("12 mm")),
    Sketcher.Constraint("DistanceY", 1, 3, 11, 3, Q("25 mm")),
    Sketcher.Constraint("DistanceY", 7, 3, 12, 3, Q("35.67 mm")),
    Sketcher.Constraint("DistanceY", 11, 3, 18, 3, Q("23.09 mm")),
    Sketcher.Constraint("DistanceY", 12, 3, 19, 3, Q("29.92 mm")),
    Sketcher.Constraint("DistanceY", 1, 3, 9, 3, Q("1.455 mm")),
    Sketcher.Constraint("DistanceY", 20, 3, 5, 3, Q("2.205 mm")),
    Sketcher.Constraint("DistanceY", 19, 3, 21, 3, Q("12.205 mm")),
    Sketcher.Constraint("DistanceY", 1, 3, 7, 3, Q("1.1025 mm")),
    Sketcher.Constraint("DistanceY", 6, 3, 8, 3, Q("6.1025 mm")),
    Sketcher.Constraint("DistanceY", -1, 1, 1, 3, Q("98.685111 mm")),
    Sketcher.Constraint("DistanceY", -1, 1, 6, 3, Q("96.736361 mm")),
    Sketcher.Constraint("DistanceX", -1, 1, 10, 3, Q("75.51473 mm")),
    Sketcher.Constraint("DistanceX", -1, 1, 12, 3, Q("75.120689 mm")),
    Sketcher.Constraint("DistanceX", -1, 1, 14, 3, Q("131.618021 mm")),
    Sketcher.Constraint("DistanceX", -1, 1, 15, 3, Q("136.902941 mm")),
    Sketcher.Constraint("DistanceX", -1, 1, 16, 3, Q("142.187861 mm")),
    Sketcher.Constraint("DistanceX", -1, 1, 3, 2, Q("147.472781 mm")),
    Sketcher.Constraint("DistanceX", 6, 3, 7, 3, Q("5.28492 mm")),
    Sketcher.Constraint("DistanceX", 7, 3, 8, 3, Q("5.28492 mm")),
    Sketcher.Constraint("DistanceX", 13, 3, 17, 3, Q("0.394042 mm")),
    Sketcher.Constraint("DistanceX", 11, 3, 17, 3, Q("20.390568 mm")),
    Sketcher.Constraint("DistanceX", 0, 2, 6, 3, Q("5.28492 mm")),
])
pad5 = body5.newObject("PartDesign::Pad", "Pad004")
pad5.Profile = sketch5
pad5.Length = 2.8
body6 = doc.addObject("PartDesign::Body", "Body005")

sketch6 = body6.newObject("Sketcher::SketchObject", "Sketch005")
sketch6.AttachmentSupport = (doc.getObject("XY_Plane005"), [""])
sketch6.MapMode = "FlatFace"
sketch6.addGeometry(Part.LineSegment(Vector(214.1, -4.1, 0), Vector(234.1, -4.1, 0)), False)
sketch6.addGeometry(Part.LineSegment(Vector(234.1, -4.1, 0), Vector(234.1, 30.9, 0)), False)
sketch6.addGeometry(Part.ArcOfCircle(Part.Circle(Vector(229.1, 30.9, 0), Vector(0, 0, 1), 5), math.radians(0), math.radians(90)), False)
sketch6.addGeometry(Part.LineSegment(Vector(229.1, 35.9, 0), Vector(219.1, 35.9, 0)), False)
sketch6.addGeometry(Part.ArcOfCircle(Part.Circle(Vector(219.1, 30.9, 0), Vector(0, 0, 1), 5), math.radians(90), math.radians(180)), False)
sketch6.addGeometry(Part.LineSegment(Vector(214.1, 30.9, 0), Vector(214.1, -4.1, 0)), False)
sketch6.addGeometry(Part.Circle(Vector(224.1, 0.9, 0), Vector(0, 0, 1), 1.5), False)
add_polygon(sketch6, [(219.1, 30.9), (229.1, 30.9), (229.1, 28.1), (219.1, 28.1)])
sketch6.addConstraint([
    Sketcher.Constraint("Coincident", 0, 2, 1, 1),
    Sketcher.Constraint("Tangent", 1, 2, 2, 1),
    Sketcher.Constraint("Tangent", 2, 2, 3, 1),
    Sketcher.Constraint("Tangent", 3, 2, 4, 1),
    Sketcher.Constraint("Tangent", 4, 2, 5, 1),
    Sketcher.Constraint("Coincident", 5, 2, 0, 1),
    Sketcher.Constraint("Horizontal", 0),
    Sketcher.Constraint("Vertical", 1),
    Sketcher.Constraint("Horizontal", 3),
    Sketcher.Constraint("Vertical", 5),
    Sketcher.Constraint("Horizontal", 7),
    Sketcher.Constraint("Vertical", 8),
    Sketcher.Constraint("Horizontal", 9),
    Sketcher.Constraint("Vertical", 10),
    Sketcher.Constraint("Coincident", 7, 2, 2, 3),
    Sketcher.Constraint("Coincident", 10, 2, 4, 3),
    Sketcher.Constraint("Diameter", 6, Q("3 mm")),
    Sketcher.Constraint("Radius", 2, Q("5 mm")),
    Sketcher.Constraint("DistanceX", 0, 1, 0, 2, Q("20 mm")),
    Sketcher.Constraint("DistanceY", 1, 1, 1, 2, Q("35 mm")),
    Sketcher.Constraint("DistanceY", 8, 2, 8, 1, Q("2.8 mm")),
    Sketcher.Constraint("DistanceX", 6, 3, 2, 3, Q("5 mm")),
    Sketcher.Constraint("DistanceY", 6, 3, 2, 3, Q("30 mm")),
    Sketcher.Constraint("DistanceX", -1, 1, 2, 3, Q("229.111848 mm")),
    Sketcher.Constraint("DistanceY", -1, 1, 2, 3, Q("30.865618 mm")),
])
pad6 = body6.newObject("PartDesign::Pad", "Pad005")
pad6.Profile = sketch6
pad6.Length = 2.8
body7 = doc.addObject("PartDesign::Body", "Body006")

sketch7 = body7.newObject("Sketcher::SketchObject", "Sketch006")
sketch7.AttachmentSupport = (doc.getObject("XY_Plane006"), [""])
sketch7.MapMode = "FlatFace"
sketch7.addGeometry([
    Part.Circle(Vector(193.7, 109.9, 0), Vector(0, 0, 1), 15),
    Part.ArcOfCircle(Part.Circle(Vector(193.7, 109.9, 0), Vector(0, 0, 1), 11.6), math.radians(-110), math.radians(-70)),
    Part.LineSegment(Vector(189.7, 99, 0), Vector(191.5, 103.9, 0)),
    Part.ArcOfCircle(Part.Circle(Vector(193.7, 109.9, 0), Vector(0, 0, 1), 6.4), math.radians(-110), math.radians(-70)),
    Part.LineSegment(Vector(196, 103.9, 0), Vector(197.7, 99, 0)),
    Part.ArcOfCircle(Part.Circle(Vector(193.7, 109.9, 0), Vector(0, 0, 1), 11.6), math.radians(-170), math.radians(-130)),
    Part.LineSegment(Vector(182.3, 107.9, 0), Vector(187.4, 108.8, 0)),
    Part.ArcOfCircle(Part.Circle(Vector(193.7, 109.9, 0), Vector(0, 0, 1), 6.4), math.radians(-170), math.radians(-130)),
    Part.LineSegment(Vector(189.6, 105, 0), Vector(186.3, 101, 0)),
    Part.Circle(Vector(193.7, 109.9, 0), Vector(0, 0, 1), 1.5),
    Part.ArcOfCircle(Part.Circle(Vector(193.7, 109.9, 0), Vector(0, 0, 1), 11.6), math.radians(-50), math.radians(-10)),
    Part.LineSegment(Vector(201.2, 101, 0), Vector(197.9, 105, 0)),
    Part.ArcOfCircle(Part.Circle(Vector(193.7, 109.9, 0), Vector(0, 0, 1), 6.4), math.radians(-50), math.radians(-10)),
    Part.LineSegment(Vector(200.1, 108.8, 0), Vector(205.2, 107.9, 0)),
    Part.LineSegment(Vector(187.4, 111, 0), Vector(182.3, 111.9, 0)),
    Part.ArcOfCircle(Part.Circle(Vector(193.7, 109.9, 0), Vector(0, 0, 1), 11.6), math.radians(130), math.radians(170)),
    Part.LineSegment(Vector(186.3, 118.8, 0), Vector(189.6, 114.8, 0)),
    Part.ArcOfCircle(Part.Circle(Vector(193.7, 109.9, 0), Vector(0, 0, 1), 6.4), math.radians(130), math.radians(170)),
    Part.ArcOfCircle(Part.Circle(Vector(193.7, 109.9, 0), Vector(0, 0, 1), 11.6), math.radians(10), math.radians(50)),
    Part.LineSegment(Vector(205.2, 111.9, 0), Vector(200.1, 111, 0)),
    Part.ArcOfCircle(Part.Circle(Vector(193.7, 109.9, 0), Vector(0, 0, 1), 6.4), math.radians(10), math.radians(50)),
    Part.LineSegment(Vector(197.9, 114.8, 0), Vector(201.2, 118.8, 0)),
    Part.ArcOfCircle(Part.Circle(Vector(193.7, 109.9, 0), Vector(0, 0, 1), 11.6), math.radians(70), math.radians(110)),
    Part.LineSegment(Vector(197.7, 120.8, 0), Vector(196, 115.9, 0)),
    Part.ArcOfCircle(Part.Circle(Vector(193.7, 109.9, 0), Vector(0, 0, 1), 6.4), math.radians(70), math.radians(110)),
    Part.LineSegment(Vector(191.5, 115.9, 0), Vector(189.7, 120.8, 0)),
], False)
sketch7.addConstraint([
    Sketcher.Constraint("Coincident", 1, 1, 2, 1),
    Sketcher.Constraint("Coincident", 2, 2, 3, 1),
    Sketcher.Constraint("Coincident", 3, 2, 4, 1),
    Sketcher.Constraint("Coincident", 4, 2, 1, 2),
    Sketcher.Constraint("Coincident", 5, 1, 6, 1),
    Sketcher.Constraint("Coincident", 6, 2, 7, 1),
    Sketcher.Constraint("Coincident", 7, 2, 8, 1),
    Sketcher.Constraint("Coincident", 8, 2, 5, 2),
    Sketcher.Constraint("Coincident", 10, 1, 11, 1),
    Sketcher.Constraint("Coincident", 11, 2, 12, 1),
    Sketcher.Constraint("Coincident", 12, 2, 13, 1),
    Sketcher.Constraint("Coincident", 13, 2, 10, 2),
    Sketcher.Constraint("Coincident", 14, 2, 15, 2),
    Sketcher.Constraint("Coincident", 15, 1, 16, 1),
    Sketcher.Constraint("Coincident", 16, 2, 17, 1),
    Sketcher.Constraint("Coincident", 17, 2, 14, 1),
    Sketcher.Constraint("Coincident", 18, 1, 19, 1),
    Sketcher.Constraint("Coincident", 19, 2, 20, 1),
    Sketcher.Constraint("Coincident", 20, 2, 21, 1),
    Sketcher.Constraint("Coincident", 21, 2, 18, 2),
    Sketcher.Constraint("Coincident", 22, 1, 23, 1),
    Sketcher.Constraint("Coincident", 23, 2, 24, 1),
    Sketcher.Constraint("Coincident", 24, 2, 25, 1),
    Sketcher.Constraint("Coincident", 25, 2, 22, 2),
    Sketcher.Constraint("Coincident", 1, 3, 0, 3),
    Sketcher.Constraint("Coincident", 3, 3, 0, 3),
    Sketcher.Constraint("Coincident", 5, 3, 0, 3),
    Sketcher.Constraint("Coincident", 7, 3, 0, 3),
    Sketcher.Constraint("Coincident", 9, 3, 0, 3),
    Sketcher.Constraint("Coincident", 10, 3, 0, 3),
    Sketcher.Constraint("Coincident", 12, 3, 0, 3),
    Sketcher.Constraint("Coincident", 15, 3, 0, 3),
    Sketcher.Constraint("Coincident", 17, 3, 0, 3),
    Sketcher.Constraint("Coincident", 18, 3, 0, 3),
    Sketcher.Constraint("Coincident", 20, 3, 0, 3),
    Sketcher.Constraint("Coincident", 22, 3, 0, 3),
    Sketcher.Constraint("Coincident", 24, 3, 0, 3),
    Sketcher.Constraint("Equal", 1, 5),
    Sketcher.Constraint("Equal", 3, 7),
    Sketcher.Constraint("Equal", 5, 10),
    Sketcher.Constraint("Equal", 7, 12),
    Sketcher.Constraint("Equal", 10, 15),
    Sketcher.Constraint("Equal", 12, 17),
    Sketcher.Constraint("Equal", 15, 18),
    Sketcher.Constraint("Equal", 17, 20),
    Sketcher.Constraint("Equal", 18, 22),
    Sketcher.Constraint("Equal", 20, 24),
    Sketcher.Constraint("Parallel", 13, 14),
    Sketcher.Constraint("Parallel", 11, 16),
    Sketcher.Constraint("Parallel", 6, 19),
    Sketcher.Constraint("Parallel", 8, 21),
    Sketcher.Constraint("Parallel", 2, 23),
    Sketcher.Constraint("Parallel", 4, 25),
    Sketcher.Constraint("Diameter", 0, Q("30 mm")),
    Sketcher.Constraint("Diameter", 9, Q("3 mm")),
    Sketcher.Constraint("Radius", 1, Q("11.588808 mm")),
    Sketcher.Constraint("Radius", 3, Q("6.424189 mm")),
    Sketcher.Constraint("DistanceX", 3, 2, 10, 1, Q("5.205 mm")),
    Sketcher.Constraint("DistanceX", 15, 1, 24, 2, Q("5.205 mm")),
    Sketcher.Constraint("DistanceX", 7, 2, 1, 1, Q("0.115701 mm")),
    Sketcher.Constraint("DistanceX", 11, 2, 12, 2, Q("2.2165 mm")),
    Sketcher.Constraint("DistanceX", 17, 2, 16, 2, Q("2.2165 mm")),
    Sketcher.Constraint("DistanceX", 5, 1, 17, 2, Q("5.089299 mm")),
    Sketcher.Constraint("DistanceX", 12, 2, 18, 1, Q("5.089299 mm")),
    Sketcher.Constraint("DistanceX", 22, 1, 20, 2, Q("0.115701 mm")),
    Sketcher.Constraint("DistanceX", 16, 2, 22, 1, Q("8.112302 mm")),
    Sketcher.Constraint("DistanceY", -1, 1, 0, 3, Q("109.903152 mm")),
    Sketcher.Constraint("DistanceX", -1, 1, 1, 1, Q("189.74606 mm")),
    Sketcher.Constraint("DistanceY", -1, 1, 1, 1, Q("99.026141 mm")),
    Sketcher.Constraint("DistanceX", -1, 1, 3, 2, Q("195.960272 mm")),
    Sketcher.Constraint("DistanceY", -1, 1, 4, 2, Q("99.025188 mm")),
    Sketcher.Constraint("DistanceY", -1, 1, 6, 2, Q("108.808119 mm")),
    Sketcher.Constraint("DistanceX", -1, 1, 11, 2, Q("197.858361 mm")),
    Sketcher.Constraint("DistanceX", -1, 1, 13, 2, Q("205.163689 mm")),
    Sketcher.Constraint("DistanceY", -1, 1, 14, 2, Q("111.881239 mm")),
    Sketcher.Constraint("DistanceY", -1, 1, 21, 2, Q("118.803028 mm")),
    Sketcher.Constraint("DistanceX", -1, 1, 23, 2, Q("195.961708 mm")),
])
pad7 = body7.newObject("PartDesign::Pad", "Pad006")
pad7.Profile = sketch7
pad7.Length = 2.8

doc.recompute()
